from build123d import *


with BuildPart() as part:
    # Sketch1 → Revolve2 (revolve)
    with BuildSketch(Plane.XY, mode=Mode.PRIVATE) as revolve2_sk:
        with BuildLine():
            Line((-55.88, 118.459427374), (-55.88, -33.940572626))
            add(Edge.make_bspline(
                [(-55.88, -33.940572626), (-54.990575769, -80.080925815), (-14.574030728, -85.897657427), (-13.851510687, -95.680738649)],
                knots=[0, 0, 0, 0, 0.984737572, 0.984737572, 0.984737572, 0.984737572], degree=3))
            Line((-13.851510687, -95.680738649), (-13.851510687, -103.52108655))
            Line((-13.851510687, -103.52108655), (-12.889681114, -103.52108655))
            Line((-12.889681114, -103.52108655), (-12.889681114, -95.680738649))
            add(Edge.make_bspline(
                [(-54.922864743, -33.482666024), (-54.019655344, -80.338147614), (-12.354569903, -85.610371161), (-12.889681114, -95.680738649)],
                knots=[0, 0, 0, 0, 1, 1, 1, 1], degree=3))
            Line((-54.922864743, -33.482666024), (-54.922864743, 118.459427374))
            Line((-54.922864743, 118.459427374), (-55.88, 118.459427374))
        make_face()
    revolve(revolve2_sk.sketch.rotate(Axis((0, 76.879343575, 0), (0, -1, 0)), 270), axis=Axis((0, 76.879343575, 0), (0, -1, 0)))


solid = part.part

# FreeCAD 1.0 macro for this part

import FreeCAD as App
import Part
import Sketcher

V = App.Vector
Q = App.Units.Quantity

doc = App.newDocument("Part")
body = doc.addObject("PartDesign::Body", "Body")

# Sketch on XY plane
sketch1 = body.newObject("Sketcher::SketchObject", "Sketch")
sketch1.AttachmentSupport = (doc.getObject("XY_Plane"), [""])
sketch1.MapMode = "FlatFace"
sketch1.addGeometry([
    Part.LineSegment(V(-55.88, 118.459427, 0), V(-55.88, -33.940573, 0)),  # 0
    Part.BSplineCurve([V(-55.88, -33.940573, 0), V(-54.990576, -80.080926, 0), V(-14.574031, -85.897657, 0), V(-13.851511, -95.680739, 0)], [4, 4], [0, 0.984737572], False, 3, [1, 1, 1, 1], False),  # 1
    Part.LineSegment(V(-13.851511, -95.680739, 0), V(-13.851511, -103.521087, 0)),  # 2
    Part.LineSegment(V(-13.851511, -103.521087, 0), V(-12.889681, -103.521087, 0)),  # 3
    Part.LineSegment(V(-12.889681, -103.521087, 0), V(-12.889681, -95.680739, 0)),  # 4
    Part.BSplineCurve([V(-54.922865, -33.482666, 0), V(-54.019655, -80.338148, 0), V(-12.35457, -85.610371, 0), V(-12.889681, -95.680739, 0)], [4, 4], [0, 1], False, 3, [1, 1, 1, 1], False),  # 5
    Part.LineSegment(V(-54.922865, -33.482666, 0), V(-54.922865, 118.459427, 0)),  # 6
    Part.LineSegment(V(-54.922865, 118.459427, 0), V(-55.88, 118.459427, 0)),  # 7
], False)
sketch1.addConstraint([
    Sketcher.Constraint("Block", 1),
    Sketcher.Constraint("Block", 5),
    Sketcher.Constraint("Coincident", 0, 2, 1, 1),
    Sketcher.Constraint("Coincident", 1, 2, 2, 1),
    Sketcher.Constraint("Coincident", 2, 2, 3, 1),
    Sketcher.Constraint("Coincident", 3, 2, 4, 1),
    Sketcher.Constraint("Coincident", 4, 2, 5, 2),
    Sketcher.Constraint("Coincident", 5, 1, 6, 1),
    Sketcher.Constraint("Coincident", 6, 2, 7, 1),
    Sketcher.Constraint("Coincident", 7, 2, 0, 1),
    Sketcher.Constraint("Vertical", 0),
    Sketcher.Constraint("Vertical", 2),
    Sketcher.Constraint("Horizontal", 3),
    Sketcher.Constraint("Vertical", 4),
    Sketcher.Constraint("Vertical", 6),
    Sketcher.Constraint("Horizontal", 7),
    Sketcher.Constraint("DistanceY", 0, 2, 0, 1, Q("6 in")),
    Sketcher.Constraint("DistanceY", 2, 2, 2, 1, Q("7.840348 mm")),
])
revolution = body.newObject("PartDesign::Revolution", "Revolution")
revolution.Profile = sketch1
revolution.ReferenceAxis = (sketch1, ["V_Axis"])
revolution.Angle = 360

doc.recompute()
